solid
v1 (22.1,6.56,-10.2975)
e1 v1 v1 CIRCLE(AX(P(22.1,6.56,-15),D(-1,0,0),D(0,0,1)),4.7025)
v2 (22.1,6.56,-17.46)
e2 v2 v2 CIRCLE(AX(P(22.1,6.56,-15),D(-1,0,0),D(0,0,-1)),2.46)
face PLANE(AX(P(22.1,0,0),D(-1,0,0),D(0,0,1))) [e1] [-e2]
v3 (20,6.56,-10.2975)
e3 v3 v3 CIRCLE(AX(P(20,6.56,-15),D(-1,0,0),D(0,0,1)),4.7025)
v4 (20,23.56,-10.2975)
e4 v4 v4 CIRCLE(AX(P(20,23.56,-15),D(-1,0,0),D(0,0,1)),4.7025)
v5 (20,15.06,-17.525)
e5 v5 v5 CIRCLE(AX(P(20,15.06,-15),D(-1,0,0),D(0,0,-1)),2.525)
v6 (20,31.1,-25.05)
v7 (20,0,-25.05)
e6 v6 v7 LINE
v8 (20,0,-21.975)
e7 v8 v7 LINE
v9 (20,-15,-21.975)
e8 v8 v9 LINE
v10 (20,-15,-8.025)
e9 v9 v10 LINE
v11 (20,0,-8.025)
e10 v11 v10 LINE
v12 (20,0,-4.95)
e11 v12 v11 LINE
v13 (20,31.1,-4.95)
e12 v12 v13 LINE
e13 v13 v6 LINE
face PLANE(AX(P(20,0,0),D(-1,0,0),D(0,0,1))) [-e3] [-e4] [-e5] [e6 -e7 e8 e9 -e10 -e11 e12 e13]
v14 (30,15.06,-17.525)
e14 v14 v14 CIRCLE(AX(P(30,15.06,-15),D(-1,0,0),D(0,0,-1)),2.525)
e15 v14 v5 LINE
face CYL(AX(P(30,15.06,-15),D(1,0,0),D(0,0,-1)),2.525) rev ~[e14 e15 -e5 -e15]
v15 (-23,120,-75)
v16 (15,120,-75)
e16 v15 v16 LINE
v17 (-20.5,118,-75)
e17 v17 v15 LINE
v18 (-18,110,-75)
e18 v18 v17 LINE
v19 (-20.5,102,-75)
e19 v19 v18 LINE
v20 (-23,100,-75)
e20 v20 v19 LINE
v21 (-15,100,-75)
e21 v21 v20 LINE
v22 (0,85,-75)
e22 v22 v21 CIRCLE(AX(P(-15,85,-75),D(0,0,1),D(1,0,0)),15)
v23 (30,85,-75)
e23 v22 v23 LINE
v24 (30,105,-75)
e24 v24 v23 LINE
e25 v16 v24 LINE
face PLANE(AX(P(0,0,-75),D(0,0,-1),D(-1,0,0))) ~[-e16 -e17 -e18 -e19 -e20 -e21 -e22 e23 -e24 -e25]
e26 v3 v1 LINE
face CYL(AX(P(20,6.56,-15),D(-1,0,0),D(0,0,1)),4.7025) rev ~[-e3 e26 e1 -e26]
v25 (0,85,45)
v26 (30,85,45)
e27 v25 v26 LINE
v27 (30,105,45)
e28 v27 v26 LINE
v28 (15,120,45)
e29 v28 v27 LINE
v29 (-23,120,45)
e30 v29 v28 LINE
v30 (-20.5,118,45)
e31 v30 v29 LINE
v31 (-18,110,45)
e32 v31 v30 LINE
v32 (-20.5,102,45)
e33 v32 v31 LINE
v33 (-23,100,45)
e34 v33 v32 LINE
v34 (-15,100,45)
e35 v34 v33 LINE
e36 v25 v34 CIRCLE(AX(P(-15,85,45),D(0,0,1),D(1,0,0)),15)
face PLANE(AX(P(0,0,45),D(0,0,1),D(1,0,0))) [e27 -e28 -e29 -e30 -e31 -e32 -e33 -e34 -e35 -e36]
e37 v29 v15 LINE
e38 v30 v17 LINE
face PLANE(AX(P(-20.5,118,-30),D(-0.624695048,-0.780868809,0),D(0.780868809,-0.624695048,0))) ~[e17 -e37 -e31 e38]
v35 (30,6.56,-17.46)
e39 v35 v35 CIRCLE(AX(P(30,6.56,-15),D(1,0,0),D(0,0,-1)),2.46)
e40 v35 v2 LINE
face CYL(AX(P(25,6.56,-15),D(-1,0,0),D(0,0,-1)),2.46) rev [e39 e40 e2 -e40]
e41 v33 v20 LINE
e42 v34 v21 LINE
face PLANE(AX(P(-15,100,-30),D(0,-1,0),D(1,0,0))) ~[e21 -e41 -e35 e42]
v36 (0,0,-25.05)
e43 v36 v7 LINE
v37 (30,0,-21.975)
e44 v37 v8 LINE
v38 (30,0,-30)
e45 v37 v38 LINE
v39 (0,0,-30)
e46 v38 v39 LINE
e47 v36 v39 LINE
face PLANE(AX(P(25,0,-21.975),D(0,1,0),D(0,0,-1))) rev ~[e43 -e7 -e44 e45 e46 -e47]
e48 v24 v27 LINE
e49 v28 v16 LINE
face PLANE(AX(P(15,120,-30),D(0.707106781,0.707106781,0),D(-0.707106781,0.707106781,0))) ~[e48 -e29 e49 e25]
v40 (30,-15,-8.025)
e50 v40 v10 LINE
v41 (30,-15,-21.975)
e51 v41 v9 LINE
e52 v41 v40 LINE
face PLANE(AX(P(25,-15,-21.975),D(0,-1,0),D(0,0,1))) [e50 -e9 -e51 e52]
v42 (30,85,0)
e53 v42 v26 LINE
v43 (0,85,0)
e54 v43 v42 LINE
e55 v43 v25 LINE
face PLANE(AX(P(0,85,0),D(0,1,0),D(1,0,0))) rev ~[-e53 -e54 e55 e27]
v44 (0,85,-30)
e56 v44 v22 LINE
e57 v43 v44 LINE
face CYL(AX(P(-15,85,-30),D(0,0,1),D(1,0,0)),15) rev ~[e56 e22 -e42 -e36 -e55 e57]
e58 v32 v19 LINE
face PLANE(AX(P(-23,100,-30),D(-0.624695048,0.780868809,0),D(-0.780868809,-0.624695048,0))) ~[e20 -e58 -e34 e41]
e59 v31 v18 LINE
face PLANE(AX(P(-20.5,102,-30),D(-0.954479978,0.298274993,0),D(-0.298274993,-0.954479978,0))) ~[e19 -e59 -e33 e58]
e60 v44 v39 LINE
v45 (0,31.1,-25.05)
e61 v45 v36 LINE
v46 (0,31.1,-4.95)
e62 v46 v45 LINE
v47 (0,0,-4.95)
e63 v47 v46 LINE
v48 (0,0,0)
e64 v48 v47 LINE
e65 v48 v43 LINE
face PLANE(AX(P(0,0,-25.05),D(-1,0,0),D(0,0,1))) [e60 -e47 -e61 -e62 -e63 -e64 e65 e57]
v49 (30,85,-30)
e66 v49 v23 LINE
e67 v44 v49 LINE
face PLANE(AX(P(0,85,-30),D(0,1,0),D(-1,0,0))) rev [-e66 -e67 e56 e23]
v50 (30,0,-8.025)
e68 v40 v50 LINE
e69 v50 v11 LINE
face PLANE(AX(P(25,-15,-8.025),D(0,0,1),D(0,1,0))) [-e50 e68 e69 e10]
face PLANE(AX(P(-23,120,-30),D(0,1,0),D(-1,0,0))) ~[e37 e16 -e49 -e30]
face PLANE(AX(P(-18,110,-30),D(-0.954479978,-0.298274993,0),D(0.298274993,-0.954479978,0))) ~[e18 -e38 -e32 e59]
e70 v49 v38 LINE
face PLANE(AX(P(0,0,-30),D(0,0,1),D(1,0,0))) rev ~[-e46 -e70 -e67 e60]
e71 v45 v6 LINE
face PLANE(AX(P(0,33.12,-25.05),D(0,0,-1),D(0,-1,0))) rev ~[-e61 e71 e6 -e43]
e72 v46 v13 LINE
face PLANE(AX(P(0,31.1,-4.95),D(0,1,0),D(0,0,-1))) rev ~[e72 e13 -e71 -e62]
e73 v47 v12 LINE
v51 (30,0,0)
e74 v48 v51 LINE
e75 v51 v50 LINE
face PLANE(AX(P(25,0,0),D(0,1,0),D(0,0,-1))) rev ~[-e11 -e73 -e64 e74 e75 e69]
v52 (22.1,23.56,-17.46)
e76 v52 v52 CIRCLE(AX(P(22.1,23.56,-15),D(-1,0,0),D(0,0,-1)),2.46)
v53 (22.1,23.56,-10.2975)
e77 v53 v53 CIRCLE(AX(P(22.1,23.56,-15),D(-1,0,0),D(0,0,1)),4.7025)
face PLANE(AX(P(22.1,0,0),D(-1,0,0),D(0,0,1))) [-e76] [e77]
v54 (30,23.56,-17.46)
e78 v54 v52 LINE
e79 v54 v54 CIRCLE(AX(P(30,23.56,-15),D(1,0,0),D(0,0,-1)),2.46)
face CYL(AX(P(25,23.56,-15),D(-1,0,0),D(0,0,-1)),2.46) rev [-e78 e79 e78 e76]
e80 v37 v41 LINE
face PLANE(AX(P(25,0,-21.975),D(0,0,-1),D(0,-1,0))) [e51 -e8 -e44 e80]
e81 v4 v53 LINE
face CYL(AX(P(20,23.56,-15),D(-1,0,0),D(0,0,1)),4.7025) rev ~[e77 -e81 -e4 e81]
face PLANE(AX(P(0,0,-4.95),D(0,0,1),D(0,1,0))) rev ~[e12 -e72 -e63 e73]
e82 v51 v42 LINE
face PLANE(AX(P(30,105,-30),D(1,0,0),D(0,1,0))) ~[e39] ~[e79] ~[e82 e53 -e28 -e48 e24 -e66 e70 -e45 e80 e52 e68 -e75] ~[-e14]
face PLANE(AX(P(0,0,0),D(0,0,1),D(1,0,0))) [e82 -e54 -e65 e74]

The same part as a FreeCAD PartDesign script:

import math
import FreeCAD as App
import Part
import Sketcher

V = App.Vector
Q = App.Units.Quantity


def add_polygon(sketch, points):
    """Adds a closed chain of lines whose ends are joined by coincident constraints."""
    first, n = sketch.GeometryCount, len(points)
    for a, b in zip(points, points[1:] + points[:1]):
        sketch.addGeometry(Part.LineSegment(App.Vector(*a, 0), App.Vector(*b, 0)), False)
    for i in range(n):
        sketch.addConstraint(Sketcher.Constraint("Coincident", first + i, 2, first + (i + 1) % n, 1))

doc = App.newDocument("Part")
body = doc.addObject("PartDesign::Body", "Body")

# Sketch on XY plane
sketch1 = doc.addObject("Sketcher::SketchObject", "Sketch")
body.addObject(sketch1)
sketch1.AttachmentSupport = (doc.XY_Plane, [""])
sketch1.MapMode = "FlatFace"
add_polygon(sketch1, [(0, 40), (0, 0), (25, 0), (25, 40)])  # lines 0-3
sketch1.addConstraint([
    Sketcher.Constraint("Vertical", 0),
    Sketcher.Constraint("Horizontal", 1),
    Sketcher.Constraint("Vertical", 2),
    Sketcher.Constraint("Horizontal", 3),
    Sketcher.Constraint("Coincident", 0, 2, -1, 1),
    Sketcher.Constraint("DistanceX", 1, 1, 1, 2, 25.0),
    Sketcher.Constraint("DistanceY", 0, 2, 0, 1, 40.0),
])
pad1 = doc.addObject("PartDesign::Pad", "Pad")
body.addObject(pad1)
pad1.Profile = sketch1
pad1.Length = 30
pad1.Reversed = True

# Sketch on YZ plane
sketch2 = doc.addObject("Sketcher::SketchObject", "Sketch001")
body.addObject(sketch2)
sketch2.AttachmentSupport = (doc.YZ_Plane, [""])
sketch2.MapMode = "FlatFace"
sketch2.AttachmentOffset = App.Placement(V(0, 0, 25), App.Rotation())
sketch2.addGeometry(Part.Circle(V(6.6, -15, 0), V(0, 0, 1), 2.5), False)
sketch2.addConstraint([
    Sketcher.Constraint("Diameter", 0, 4.92),
    Sketcher.Constraint("DistanceY", 0, 3, -1, 1, 15.0),
    Sketcher.Constraint("DistanceX", -1, 1, 0, 3, 6.56),
])
pocket1 = doc.addObject("PartDesign::Pocket", "Pocket")
body.addObject(pocket1)
pocket1.Profile = sketch2
pocket1.Length = 30

# Sketch on YZ plane
sketch3 = doc.addObject("Sketcher::SketchObject", "Sketch002")
body.addObject(sketch3)
sketch3.AttachmentSupport = (doc.YZ_Plane, [""])
sketch3.MapMode = "FlatFace"
add_polygon(sketch3, [(0, -25), (0, -5), (33, -5), (33, -25)])  # lines 0-3
sketch3.addConstraint([
    Sketcher.Constraint("Vertical", 0),
    Sketcher.Constraint("Horizontal", 1),
    Sketcher.Constraint("Vertical", 2),
    Sketcher.Constraint("Horizontal", 3),
    Sketcher.Constraint("PointOnObject", 0, 2, -2),
    Sketcher.Constraint("DistanceY", 0, 1, 0, 2, 20.1),
    Sketcher.Constraint("DistanceX", 1, 1, 1, 2, 33.12),
    Sketcher.Constraint("DistanceY", 0, 2, -1, 1, 4.95),
])
pocket2 = doc.addObject("PartDesign::Pocket", "Pocket001")
body.addObject(pocket2)
pocket2.Profile = sketch3
pocket2.Length = 20
pocket2.Reversed = True

# Sketch on XZ plane
sketch4 = doc.addObject("Sketcher::SketchObject", "Sketch003")
body.addObject(sketch4)
sketch4.AttachmentSupport = (doc.XZ_Plane, [""])
sketch4.MapMode = "FlatFace"
add_polygon(sketch4, [(25, -8), (20, -8), (20, -22), (25, -22)])  # lines 0-3
sketch4.addConstraint([
    Sketcher.Constraint("Horizontal", 0),
    Sketcher.Constraint("Vertical", 1),
    Sketcher.Constraint("Horizontal", 2),
    Sketcher.Constraint("Vertical", 3),
    Sketcher.Constraint("DistanceY", 1, 2, 1, 1, 13.95),
    Sketcher.Constraint("DistanceX", 0, 2, 0, 1, 5.0),
    Sketcher.Constraint("DistanceX", -1, 1, 0, 2, 20.0),
    Sketcher.Constraint("DistanceY", 0, 2, -1, 1, 8.025),
])
pad2 = doc.addObject("PartDesign::Pad", "Pad001")
body.addObject(pad2)
pad2.Profile = sketch4
pad2.Length = 15

# Sketch on YZ plane
sketch5 = doc.addObject("Sketcher::SketchObject", "Sketch004")
body.addObject(sketch5)
sketch5.AttachmentSupport = (doc.YZ_Plane, [""])
sketch5.MapMode = "FlatFace"
sketch5.AttachmentOffset = App.Placement(V(0, 0, 20), App.Rotation())
sketch5.addGeometry([
    Part.Circle(V(6.6, -15, 0), V(0, 0, 1), 4.7),
    Part.Circle(V(6.6, -15, 0), V(0, 0, 1), 2.5),
], False)
sketch5.addConstraint([
    Sketcher.Constraint("Coincident", 1, 3, 0, 3),
    Sketcher.Constraint("Diameter", 0, 9.405),
    Sketcher.Constraint("Diameter", 1, 4.92),
    Sketcher.Constraint("DistanceY", 0, 3, -1, 1, 15.0),
    Sketcher.Constraint("DistanceX", -1, 1, 0, 3, 6.56),
])
pocket3 = doc.addObject("PartDesign::Pocket", "Pocket002")
body.addObject(pocket3)
pocket3.Profile = sketch5
pocket3.Length = 2.1
pocket3.Reversed = True

# Sketch on YZ plane
sketch6 = doc.addObject("Sketcher::SketchObject", "Sketch005")
body.addObject(sketch6)
sketch6.AttachmentSupport = (doc.YZ_Plane, [""])
sketch6.MapMode = "FlatFace"
sketch6.AttachmentOffset = App.Placement(V(0, 0, 25), App.Rotation())
sketch6.addGeometry(Part.Circle(V(23.6, -15, 0), V(0, 0, 1), 2.5), False)
sketch6.addConstraint([
    Sketcher.Constraint("Diameter", 0, 4.92),
    Sketcher.Constraint("DistanceY", 0, 3, -1, 1, 15.0),
    Sketcher.Constraint("DistanceX", -1, 1, 0, 3, 23.56),
])
pocket4 = doc.addObject("PartDesign::Pocket", "Pocket003")
body.addObject(pocket4)
pocket4.Profile = sketch6
pocket4.Length = 10

# Sketch on YZ plane
sketch7 = doc.addObject("Sketcher::SketchObject", "Sketch006")
body.addObject(sketch7)
sketch7.AttachmentSupport = (doc.YZ_Plane, [""])
sketch7.MapMode = "FlatFace"
sketch7.AttachmentOffset = App.Placement(V(0, 0, 20), App.Rotation())
sketch7.addGeometry([
    Part.Circle(V(23.6, -15, 0), V(0, 0, 1), 4.7),
    Part.Circle(V(23.6, -15, 0), V(0, 0, 1), 2.5),
], False)
sketch7.addConstraint([
    Sketcher.Constraint("Coincident", 1, 3, 0, 3),
    Sketcher.Constraint("Diameter", 0, 9.405),
    Sketcher.Constraint("Diameter", 1, 4.92),
    Sketcher.Constraint("DistanceY", 0, 3, -1, 1, 15.0),
    Sketcher.Constraint("DistanceX", -1, 1, 0, 3, 23.56),
])
pocket5 = doc.addObject("PartDesign::Pocket", "Pocket004")
body.addObject(pocket5)
pocket5.Profile = sketch7
pocket5.Length = 2.1
pocket5.Reversed = True

# Sketch on YZ plane
sketch8 = doc.addObject("Sketcher::SketchObject", "Sketch007")
body.addObject(sketch8)
sketch8.AttachmentSupport = (doc.YZ_Plane, [""])
sketch8.MapMode = "FlatFace"
sketch8.AttachmentOffset = App.Placement(V(0, 0, 25), App.Rotation())
add_polygon(sketch8, [(0, -30), (40, -30), (40, 0), (0, 0), (0, -8), (-15, -8), (-15, -22), (0, -22)])  # lines 0-7
sketch8.addGeometry(Part.Circle(V(6.6, -15, 0), V(0, 0, 1), 2.5), False)  # 8
sketch8.addGeometry(Part.Circle(V(23.6, -15, 0), V(0, 0, 1), 2.5), False)  # 9
sketch8.addConstraint([
    Sketcher.Constraint("Horizontal", 0),
    Sketcher.Constraint("Vertical", 1),
    Sketcher.Constraint("Horizontal", 2),
    Sketcher.Constraint("Vertical", 3),
    Sketcher.Constraint("Horizontal", 4),
    Sketcher.Constraint("Vertical", 5),
    Sketcher.Constraint("Horizontal", 6),
    Sketcher.Constraint("Vertical", 7),
    Sketcher.Constraint("Coincident", 2, 2, -1, 1),
    Sketcher.Constraint("Equal", 8, 9),
    Sketcher.Constraint("PointOnObject", 6, 2, -2),
    Sketcher.Constraint("Horizontal", 8, 3, 9, 3),
    Sketcher.Constraint("Equal", 3, 7),
    Sketcher.Constraint("Diameter", 8, 4.92),
    Sketcher.Constraint("DistanceX", 0, 1, 0, 2, 40.0),
    Sketcher.Constraint("DistanceX", 4, 2, 4, 1, 15.0),
    Sketcher.Constraint("DistanceY", 1, 1, 1, 2, 30.0),
    Sketcher.Constraint("DistanceY", 8, 3, -1, 1, 15.0),
    Sketcher.Constraint("DistanceX", 8, 3, 9, 3, 17.0),
    Sketcher.Constraint("DistanceY", 5, 2, 5, 1, 13.95),
    Sketcher.Constraint("DistanceX", -1, 1, 8, 3, 6.56),
])
pad3 = doc.addObject("PartDesign::Pad", "Pad002")
body.addObject(pad3)
pad3.Profile = sketch8
pad3.Length = 5

# Sketch on XZ plane
sketch9 = doc.addObject("Sketcher::SketchObject", "Sketch008")
body.addObject(sketch9)
sketch9.AttachmentSupport = (doc.XZ_Plane, [""])
sketch9.MapMode = "FlatFace"
sketch9.AttachmentOffset = App.Placement(V(0, 0, -40), App.Rotation())
add_polygon(sketch9, [(30, -30), (0, -30), (0, 0), (30, 0)])  # lines 0-3
sketch9.addConstraint([
    Sketcher.Constraint("Horizontal", 0),
    Sketcher.Constraint("Vertical", 1),
    Sketcher.Constraint("Horizontal", 2),
    Sketcher.Constraint("Vertical", 3),
    Sketcher.Constraint("Coincident", 1, 2, -1, 1),
    Sketcher.Constraint("Equal", 2, 1),
    Sketcher.Constraint("DistanceX", 0, 2, 0, 1, 30.0),
])
pad4 = doc.addObject("PartDesign::Pad", "Pad003")
body.addObject(pad4)
pad4.Profile = sketch9
pad4.Length = 30
pad4.Reversed = True

# Sketch on YZ plane
sketch10 = doc.addObject("Sketcher::SketchObject", "Sketch009")
body.addObject(sketch10)
sketch10.AttachmentSupport = (doc.YZ_Plane, [""])
sketch10.MapMode = "FlatFace"
sketch10.AttachmentOffset = App.Placement(V(0, 0, 30), App.Rotation())
sketch10.addGeometry(Part.Circle(V(15.1, -15, 0), V(0, 0, 1), 2.5), False)
sketch10.addConstraint([
    Sketcher.Constraint("Diameter", 0, 5.05),
    Sketcher.Constraint("DistanceY", 0, 3, -1, 1, 15.0),
    Sketcher.Constraint("DistanceX", -1, 1, 0, 3, 15.06),
])
pocket6 = doc.addObject("PartDesign::Pocket", "Pocket005")
body.addObject(pocket6)
pocket6.Profile = sketch10
pocket6.Length = 30

# Sketch on XY plane
sketch11 = doc.addObject("Sketcher::SketchObject", "Sketch010")
body.addObject(sketch11)
sketch11.AttachmentSupport = (doc.XY_Plane, [""])
sketch11.MapMode = "FlatFace"
sketch11.addGeometry([
    Part.LineSegment(V(0, 70, 0), V(30, 70, 0)),  # 0
    Part.LineSegment(V(30, 70, 0), V(30, 105, 0)),  # 1
    Part.LineSegment(V(30, 105, 0), V(15, 120, 0)),  # 2
    Part.LineSegment(V(15, 120, 0), V(-23, 120, 0)),  # 3
    Part.LineSegment(V(-23, 120, 0), V(-20.5, 118, 0)),  # 4
    Part.LineSegment(V(-20.5, 118, 0), V(-18, 110, 0)),  # 5
    Part.LineSegment(V(-18, 110, 0), V(-20.5, 102, 0)),  # 6
    Part.LineSegment(V(-20.5, 102, 0), V(-23, 100, 0)),  # 7
    Part.LineSegment(V(-23, 100, 0), V(-15, 100, 0)),  # 8
    Part.ArcOfCircle(Part.Circle(V(-15, 85, 0), V(0, 0, 1), 15), math.radians(0), math.radians(90)),  # 9
    Part.LineSegment(V(0, 85, 0), V(0, 70, 0)),  # 10
], False)
sketch11.addConstraint([
    Sketcher.Constraint("Coincident", 0, 2, 1, 1),
    Sketcher.Constraint("Coincident", 1, 2, 2, 1),
    Sketcher.Constraint("Coincident", 2, 2, 3, 1),
    Sketcher.Constraint("Coincident", 3, 2, 4, 1),
    Sketcher.Constraint("Coincident", 4, 2, 5, 1),
    Sketcher.Constraint("Coincident", 5, 2, 6, 1),
    Sketcher.Constraint("Coincident", 6, 2, 7, 1),
    Sketcher.Constraint("Coincident", 7, 2, 8, 1),
    Sketcher.Constraint("Tangent", 8, 2, 9, 2),
    Sketcher.Constraint("Tangent", 9, 1, 10, 1),
    Sketcher.Constraint("Coincident", 10, 2, 0, 1),
    Sketcher.Constraint("Horizontal", 0),
    Sketcher.Constraint("Vertical", 1),
    Sketcher.Constraint("Horizontal", 3),
    Sketcher.Constraint("Horizontal", 8),
    Sketcher.Constraint("Vertical", 10),
    Sketcher.Constraint("PointOnObject", 9, 1, -2),
    Sketcher.Constraint("Vertical", 4, 2, 6, 2),
    Sketcher.Constraint("Vertical", 3, 2, 7, 2),
    Sketcher.Constraint("Equal", 5, 6),
    Sketcher.Constraint("Equal", 4, 7),
    Sketcher.Constraint("Radius", 9, 15.0),
    Sketcher.Constraint("DistanceX", 0, 1, 0, 2, 30.0),
    Sketcher.Constraint("DistanceY", 10, 2, 10, 1, 15.0),
    Sketcher.Constraint("DistanceX", -1, 1, 2, 2, 15.0),
    Sketcher.Constraint("DistanceY", 9, 3, 1, 2, 20.0),
    Sketcher.Constraint("DistanceY", 1, 2, 2, 2, 15.0),
    Sketcher.Constraint("DistanceX", 3, 2, 3, 1, 38.0),
    Sketcher.Constraint("DistanceY", -1, 1, 9, 3, 85.0),
    Sketcher.Constraint("DistanceY", -1, 1, 4, 2, 118.0),
    Sketcher.Constraint("DistanceX", 5, 2, -1, 1, 18.0),
    Sketcher.Constraint("DistanceX", 4, 2, -1, 1, 20.5),
])
pad5 = doc.addObject("PartDesign::Pad", "Pad004")
body.addObject(pad5)
pad5.Profile = sketch11
pad5.Length = 30
pad5.Reversed = True

# Sketch on YZ plane
sketch12 = doc.addObject("Sketcher::SketchObject", "Sketch011")
body.addObject(sketch12)
sketch12.AttachmentSupport = (doc.YZ_Plane, [""])
sketch12.MapMode = "FlatFace"
add_polygon(sketch12, [(33.1, -5), (33.1, -25.1), (31.1, -25.1), (31.1, -5)])  # lines 0-3
sketch12.addConstraint([
    Sketcher.Constraint("Vertical", 0),
    Sketcher.Constraint("Horizontal", 1),
    Sketcher.Constraint("Vertical", 2),
    Sketcher.Constraint("Horizontal", 3),
    Sketcher.Constraint("DistanceX", 1, 2, 1, 1, 2.02),
    Sketcher.Constraint("DistanceY", 0, 2, 0, 1, 20.1),
    Sketcher.Constraint("DistanceX", -1, 1, 1, 2, 31.1),
    Sketcher.Constraint("DistanceY", 0, 2, -1, 1, 25.05),
])
pad6 = doc.addObject("PartDesign::Pad", "Pad005")
body.addObject(pad6)
pad6.Profile = sketch12
pad6.Length = 20

# Sketch on XY plane
sketch13 = doc.addObject("Sketcher::SketchObject", "Sketch012")
body.addObject(sketch13)
sketch13.AttachmentSupport = (doc.XY_Plane, [""])
sketch13.MapMode = "FlatFace"
sketch13.addGeometry([
    Part.ArcOfCircle(Part.Circle(V(-15, 85, 0), V(0, 0, 1), 15), math.radians(0), math.radians(90)),  # 0
    Part.LineSegment(V(0, 85, 0), V(30, 85, 0)),  # 1
    Part.LineSegment(V(30, 85, 0), V(30, 105, 0)),  # 2
    Part.LineSegment(V(30, 105, 0), V(15, 120, 0)),  # 3
    Part.LineSegment(V(15, 120, 0), V(-23, 120, 0)),  # 4
    Part.LineSegment(V(-23, 120, 0), V(-20.5, 118, 0)),  # 5
    Part.LineSegment(V(-20.5, 118, 0), V(-18, 110, 0)),  # 6
    Part.LineSegment(V(-18, 110, 0), V(-20.5, 102, 0)),  # 7
    Part.LineSegment(V(-20.5, 102, 0), V(-23, 100, 0)),  # 8
    Part.LineSegment(V(-23, 100, 0), V(-15, 100, 0)),  # 9
], False)
sketch13.addConstraint([
    Sketcher.Constraint("Coincident", 0, 1, 1, 1),
    Sketcher.Constraint("Coincident", 1, 2, 2, 1),
    Sketcher.Constraint("Coincident", 2, 2, 3, 1),
    Sketcher.Constraint("Coincident", 3, 2, 4, 1),
    Sketcher.Constraint("Coincident", 4, 2, 5, 1),
    Sketcher.Constraint("Coincident", 5, 2, 6, 1),
    Sketcher.Constraint("Coincident", 6, 2, 7, 1),
    Sketcher.Constraint("Coincident", 7, 2, 8, 1),
    Sketcher.Constraint("Coincident", 8, 2, 9, 1),
    Sketcher.Constraint("Tangent", 9, 2, 0, 2),
    Sketcher.Constraint("Horizontal", 1),
    Sketcher.Constraint("Vertical", 2),
    Sketcher.Constraint("Horizontal", 4),
    Sketcher.Constraint("Horizontal", 9),
    Sketcher.Constraint("PointOnObject", 0, 1, -2),
    Sketcher.Constraint("Vertical", 5, 2, 7, 2),
    Sketcher.Constraint("Vertical", 4, 2, 8, 2),
    Sketcher.Constraint("Equal", 6, 7),
    Sketcher.Constraint("Equal", 5, 8),
    Sketcher.Constraint("Radius", 0, 15.0),
    Sketcher.Constraint("DistanceX", 1, 1, 1, 2, 30.0),
    Sketcher.Constraint("DistanceX", 4, 2, 4, 1, 38.0),
    Sketcher.Constraint("DistanceX", 9, 1, 9, 2, 8.0),
    Sketcher.Constraint("DistanceY", 2, 1, 2, 2, 20.0),
    Sketcher.Constraint("Angle", 3, Q("135 deg")),
    Sketcher.Constraint("DistanceY", -1, 1, 0, 3, 85.0),
    Sketcher.Constraint("DistanceY", -1, 1, 0, 1, 85.0),
    Sketcher.Constraint("DistanceY", -1, 1, 5, 2, 118.0),
    Sketcher.Constraint("DistanceX", 6, 2, -1, 1, 18.0),
    Sketcher.Constraint("DistanceX", 5, 2, -1, 1, 20.5),
])
pad7 = doc.addObject("PartDesign::Pad", "Pad006")
body.addObject(pad7)
pad7.Profile = sketch13
pad7.Length = 45
doc.recompute()

datumplane = doc.addObject("PartDesign::Plane", "DatumPlane")
body.addObject(datumplane)
datumplane.AttachmentSupport = (doc.XY_Plane, [""])
datumplane.MapMode = "FlatFace"
datumplane.AttachmentOffset = App.Placement(V(0, 0, -15), App.Rotation())
mirrored = doc.addObject("PartDesign::Mirrored", "Mirrored")
body.addObject(mirrored)
mirrored.Originals = [pad7]
mirrored.MirrorPlane = (datumplane, [""])
body.Tip = mirrored

doc.recompute()
